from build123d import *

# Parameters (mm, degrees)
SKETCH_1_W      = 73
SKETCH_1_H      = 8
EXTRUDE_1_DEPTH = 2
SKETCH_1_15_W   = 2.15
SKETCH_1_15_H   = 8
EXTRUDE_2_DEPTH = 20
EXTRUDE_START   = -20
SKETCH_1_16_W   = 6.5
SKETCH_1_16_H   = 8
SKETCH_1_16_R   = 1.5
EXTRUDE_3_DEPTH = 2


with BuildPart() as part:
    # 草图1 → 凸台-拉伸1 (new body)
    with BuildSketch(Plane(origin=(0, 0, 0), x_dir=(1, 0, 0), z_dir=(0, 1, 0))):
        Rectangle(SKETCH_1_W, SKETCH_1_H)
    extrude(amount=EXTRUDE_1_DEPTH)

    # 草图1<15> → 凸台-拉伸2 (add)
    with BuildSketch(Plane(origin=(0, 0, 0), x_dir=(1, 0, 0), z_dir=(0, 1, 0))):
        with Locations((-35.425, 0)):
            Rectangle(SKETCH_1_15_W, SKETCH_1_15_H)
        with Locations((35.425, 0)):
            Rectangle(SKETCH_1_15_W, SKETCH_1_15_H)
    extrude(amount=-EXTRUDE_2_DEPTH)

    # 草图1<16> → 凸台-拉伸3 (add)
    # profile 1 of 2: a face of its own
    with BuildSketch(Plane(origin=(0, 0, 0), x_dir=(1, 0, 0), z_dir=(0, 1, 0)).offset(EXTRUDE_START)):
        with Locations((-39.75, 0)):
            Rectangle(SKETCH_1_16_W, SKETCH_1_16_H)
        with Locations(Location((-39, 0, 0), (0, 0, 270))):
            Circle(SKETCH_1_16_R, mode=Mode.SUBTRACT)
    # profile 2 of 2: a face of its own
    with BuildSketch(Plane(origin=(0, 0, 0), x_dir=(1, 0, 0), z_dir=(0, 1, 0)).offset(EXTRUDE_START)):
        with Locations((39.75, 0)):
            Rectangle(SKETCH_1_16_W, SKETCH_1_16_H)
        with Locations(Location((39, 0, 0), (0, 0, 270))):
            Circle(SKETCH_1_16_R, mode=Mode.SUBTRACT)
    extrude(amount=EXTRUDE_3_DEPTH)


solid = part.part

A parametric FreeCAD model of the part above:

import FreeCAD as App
import Part
import Sketcher
from FreeCAD import Vector
Q = App.Units.Quantity

doc = App.newDocument("Part")
body = doc.addObject("PartDesign::Body", "Body")

# Sketch on XZ plane
sketch1 = body.newObject("Sketcher::SketchObject", "Sketch")
sketch1.AttachmentSupport = (doc.getObject("XZ_Plane"), [""])
sketch1.MapMode = "FlatFace"
sketch1.addGeometry([
    Part.LineSegment(Vector(-36, -4, 0), Vector(-36, 4, 0)),
    Part.LineSegment(Vector(-36, 4, 0), Vector(36, 4, 0)),
    Part.LineSegment(Vector(36, 4, 0), Vector(36, -4, 0)),
    Part.LineSegment(Vector(36, -4, 0), Vector(-36, -4, 0)),
], False)
sketch1.addConstraint([
    Sketcher.Constraint("Coincident", 0, 2, 1, 1),
    Sketcher.Constraint("Coincident", 1, 2, 2, 1),
    Sketcher.Constraint("Coincident", 2, 2, 3, 1),
    Sketcher.Constraint("Coincident", 3, 2, 0, 1),
    Sketcher.Constraint("Vertical", 0),
    Sketcher.Constraint("Horizontal", 1),
    Sketcher.Constraint("Vertical", 2),
    Sketcher.Constraint("Horizontal", 3),
    Sketcher.Constraint("Symmetric", 0, 2, 2, 2, -1, 1),
    Sketcher.Constraint("DistanceX", 1, 1, 1, 2, Q("73 mm")),
    Sketcher.Constraint("DistanceY", 0, 1, 0, 2, Q("8 mm")),
])
pad1 = body.newObject("PartDesign::Pad", "Pad")
pad1.Profile = sketch1
pad1.Length = 2
pad1.Reversed = True

# Sketch on XZ plane
sketch2 = body.newObject("Sketcher::SketchObject", "Sketch001")
sketch2.AttachmentSupport = (doc.getObject("XZ_Plane"), [""])
sketch2.MapMode = "FlatFace"
sketch2.addGeometry([
    Part.LineSegment(Vector(-36.5, -4, 0), Vector(-36.5, 4, 0)),  # 0
    Part.LineSegment(Vector(-36.5, 4, 0), Vector(-34.4, 4, 0)),  # 1
    Part.LineSegment(Vector(-34.4, 4, 0), Vector(-34.4, -4, 0)),  # 2
    Part.LineSegment(Vector(-34.4, -4, 0), Vector(-36.5, -4, 0)),  # 3
    Part.LineSegment(Vector(34.4, -4, 0), Vector(34.4, 4, 0)),  # 4
    Part.LineSegment(Vector(34.4, 4, 0), Vector(36.5, 4, 0)),  # 5
    Part.LineSegment(Vector(36.5, 4, 0), Vector(36.5, -4, 0)),  # 6
    Part.LineSegment(Vector(36.5, -4, 0), Vector(34.4, -4, 0)),  # 7
], False)
sketch2.addConstraint([
    Sketcher.Constraint("Coincident", 0, 2, 1, 1),
    Sketcher.Constraint("Coincident", 1, 2, 2, 1),
    Sketcher.Constraint("Coincident", 2, 2, 3, 1),
    Sketcher.Constraint("Coincident", 3, 2, 0, 1),
    Sketcher.Constraint("Coincident", 4, 2, 5, 1),
    Sketcher.Constraint("Coincident", 5, 2, 6, 1),
    Sketcher.Constraint("Coincident", 6, 2, 7, 1),
    Sketcher.Constraint("Coincident", 7, 2, 4, 1),
    Sketcher.Constraint("Vertical", 0),
    Sketcher.Constraint("Horizontal", 1),
    Sketcher.Constraint("Vertical", 2),
    Sketcher.Constraint("Horizontal", 3),
    Sketcher.Constraint("Vertical", 4),
    Sketcher.Constraint("Horizontal", 5),
    Sketcher.Constraint("Vertical", 6),
    Sketcher.Constraint("Horizontal", 7),
    Sketcher.Constraint("Symmetric", 2, 2, 4, 2, -1, 1),
    Sketcher.Constraint("Symmetric", 0, 2, 6, 2, -1, 1),
    Sketcher.Constraint("Horizontal", 1, 2, 4, 2),
    Sketcher.Constraint("DistanceY", 0, 1, 0, 2, Q("8 mm")),
    Sketcher.Constraint("DistanceX", 0, 2, 5, 2, Q("73 mm")),
    Sketcher.Constraint("DistanceX", 1, 1, 1, 2, Q("2.15 mm")),
])
pad2 = body.newObject("PartDesign::Pad", "Pad001")
pad2.Profile = sketch2
pad2.Length = 20

# Sketch on XZ plane
sketch3 = body.newObject("Sketcher::SketchObject", "Sketch002")
sketch3.AttachmentSupport = (doc.getObject("XZ_Plane"), [""])
sketch3.MapMode = "FlatFace"
sketch3.AttachmentOffset = App.Placement(Vector(0, 0, 20), App.Rotation())
sketch3.addGeometry([
    Part.LineSegment(Vector(-43, -4, 0), Vector(-43, 4, 0)),  # 0
    Part.LineSegment(Vector(-43, 4, 0), Vector(-36.5, 4, 0)),  # 1
    Part.LineSegment(Vector(-36.5, 4, 0), Vector(-36.5, -4, 0)),  # 2
    Part.LineSegment(Vector(-36.5, -4, 0), Vector(-43, -4, 0)),  # 3
    Part.Circle(Vector(-39, 0, 0), Vector(0, 0, 1), 1.5),  # 4
    Part.LineSegment(Vector(36.5, -4, 0), Vector(36.5, 4, 0)),  # 5
    Part.LineSegment(Vector(36.5, 4, 0), Vector(43, 4, 0)),  # 6
    Part.LineSegment(Vector(43, 4, 0), Vector(43, -4, 0)),  # 7
    Part.LineSegment(Vector(43, -4, 0), Vector(36.5, -4, 0)),  # 8
    Part.Circle(Vector(39, 0, 0), Vector(0, 0, 1), 1.5),  # 9
], False)
sketch3.addConstraint([
    Sketcher.Constraint("Coincident", 0, 2, 1, 1),
    Sketcher.Constraint("Coincident", 1, 2, 2, 1),
    Sketcher.Constraint("Coincident", 2, 2, 3, 1),
    Sketcher.Constraint("Coincident", 3, 2, 0, 1),
    Sketcher.Constraint("Coincident", 5, 2, 6, 1),
    Sketcher.Constraint("Coincident", 6, 2, 7, 1),
    Sketcher.Constraint("Coincident", 7, 2, 8, 1),
    Sketcher.Constraint("Coincident", 8, 2, 5, 1),
    Sketcher.Constraint("Vertical", 0),
    Sketcher.Constraint("Horizontal", 1),
    Sketcher.Constraint("Vertical", 2),
    Sketcher.Constraint("Horizontal", 3),
    Sketcher.Constraint("Vertical", 5),
    Sketcher.Constraint("Horizontal", 6),
    Sketcher.Constraint("Vertical", 7),
    Sketcher.Constraint("Horizontal", 8),
    Sketcher.Constraint("Equal", 4, 9),
    Sketcher.Constraint("Symmetric", 4, 3, 9, 3, -1, 1),
    Sketcher.Constraint("Symmetric", 2, 2, 5, 2, -1, 1),
    Sketcher.Constraint("Symmetric", 0, 2, 7, 2, -1, 1),
    Sketcher.Constraint("PointOnObject", 4, 3, -1),
    Sketcher.Constraint("Horizontal", 1, 2, 5, 2),
    Sketcher.Constraint("Diameter", 4, Q("3 mm")),
    Sketcher.Constraint("DistanceY", 0, 1, 0, 2, Q("8 mm")),
    Sketcher.Constraint("DistanceX", 1, 1, 1, 2, Q("6.5 mm")),
    Sketcher.Constraint("DistanceX", 4, 3, -1, 1, Q("39 mm")),
    Sketcher.Constraint("DistanceX", 0, 2, -1, 1, Q("43 mm")),
])
pad3 = body.newObject("PartDesign::Pad", "Pad002")
pad3.Profile = sketch3
pad3.Length = 2
pad3.Reversed = True

doc.recompute()
